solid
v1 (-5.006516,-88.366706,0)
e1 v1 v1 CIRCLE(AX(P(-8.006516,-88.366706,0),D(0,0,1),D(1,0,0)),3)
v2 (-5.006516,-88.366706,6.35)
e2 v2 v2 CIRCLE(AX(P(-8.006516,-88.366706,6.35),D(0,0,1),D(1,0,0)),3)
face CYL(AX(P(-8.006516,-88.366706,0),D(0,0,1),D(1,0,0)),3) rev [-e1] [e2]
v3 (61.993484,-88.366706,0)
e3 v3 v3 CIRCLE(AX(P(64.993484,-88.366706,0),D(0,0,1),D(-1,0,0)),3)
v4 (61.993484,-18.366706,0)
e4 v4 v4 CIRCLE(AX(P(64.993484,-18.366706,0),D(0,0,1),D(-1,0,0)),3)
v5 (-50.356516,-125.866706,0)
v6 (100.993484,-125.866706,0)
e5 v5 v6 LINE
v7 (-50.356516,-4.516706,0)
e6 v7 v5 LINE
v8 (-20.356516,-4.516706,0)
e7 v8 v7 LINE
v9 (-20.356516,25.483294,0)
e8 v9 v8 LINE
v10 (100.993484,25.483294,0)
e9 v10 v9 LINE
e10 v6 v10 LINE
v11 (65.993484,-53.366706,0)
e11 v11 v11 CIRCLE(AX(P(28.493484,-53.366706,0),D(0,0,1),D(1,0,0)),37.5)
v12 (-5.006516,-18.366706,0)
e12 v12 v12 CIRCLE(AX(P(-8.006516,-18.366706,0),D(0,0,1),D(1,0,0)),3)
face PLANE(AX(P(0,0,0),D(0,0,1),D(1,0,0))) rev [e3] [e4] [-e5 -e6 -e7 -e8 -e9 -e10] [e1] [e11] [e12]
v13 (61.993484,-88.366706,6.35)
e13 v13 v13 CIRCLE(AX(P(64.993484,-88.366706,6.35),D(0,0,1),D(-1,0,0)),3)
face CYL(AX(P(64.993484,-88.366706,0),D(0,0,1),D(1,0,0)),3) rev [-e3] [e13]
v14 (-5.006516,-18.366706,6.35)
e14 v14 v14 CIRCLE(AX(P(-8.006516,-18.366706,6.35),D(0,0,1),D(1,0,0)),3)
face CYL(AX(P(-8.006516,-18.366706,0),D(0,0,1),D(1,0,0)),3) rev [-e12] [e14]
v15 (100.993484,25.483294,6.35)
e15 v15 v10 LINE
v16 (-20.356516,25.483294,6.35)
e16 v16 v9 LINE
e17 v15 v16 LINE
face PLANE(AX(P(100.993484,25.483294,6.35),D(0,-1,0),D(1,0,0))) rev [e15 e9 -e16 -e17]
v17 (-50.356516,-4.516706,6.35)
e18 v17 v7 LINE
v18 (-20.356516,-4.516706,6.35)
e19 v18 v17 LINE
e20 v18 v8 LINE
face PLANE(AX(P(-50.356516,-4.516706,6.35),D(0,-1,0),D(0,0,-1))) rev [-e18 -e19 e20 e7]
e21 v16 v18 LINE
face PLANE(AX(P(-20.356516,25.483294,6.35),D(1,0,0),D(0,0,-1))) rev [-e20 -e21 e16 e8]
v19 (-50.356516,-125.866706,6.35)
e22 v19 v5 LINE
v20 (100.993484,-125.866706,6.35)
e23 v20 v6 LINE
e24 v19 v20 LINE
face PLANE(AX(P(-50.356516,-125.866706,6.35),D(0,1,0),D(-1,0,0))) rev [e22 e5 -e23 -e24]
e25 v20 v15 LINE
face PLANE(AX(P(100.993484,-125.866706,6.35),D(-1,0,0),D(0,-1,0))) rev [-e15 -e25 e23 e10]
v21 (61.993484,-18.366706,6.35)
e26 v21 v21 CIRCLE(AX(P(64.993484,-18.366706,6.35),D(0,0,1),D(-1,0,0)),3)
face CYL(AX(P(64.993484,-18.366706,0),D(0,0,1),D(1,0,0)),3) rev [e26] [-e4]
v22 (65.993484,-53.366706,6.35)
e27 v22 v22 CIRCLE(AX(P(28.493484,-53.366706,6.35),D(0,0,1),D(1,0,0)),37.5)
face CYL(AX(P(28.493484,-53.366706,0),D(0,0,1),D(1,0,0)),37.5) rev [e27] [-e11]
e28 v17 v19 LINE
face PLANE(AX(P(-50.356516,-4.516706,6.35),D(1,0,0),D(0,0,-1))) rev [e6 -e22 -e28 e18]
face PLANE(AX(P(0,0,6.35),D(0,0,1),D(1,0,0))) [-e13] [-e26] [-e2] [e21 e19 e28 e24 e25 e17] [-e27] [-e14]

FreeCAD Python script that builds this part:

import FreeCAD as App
import Part
import Sketcher
from FreeCAD import Vector
Q = App.Units.Quantity


def add_polygon(sketch, points):
    """Adds a closed chain of lines whose ends are joined by coincident constraints."""
    first, n = sketch.GeometryCount, len(points)
    for a, b in zip(points, points[1:] + points[:1]):
        sketch.addGeometry(Part.LineSegment(App.Vector(*a, 0), App.Vector(*b, 0)), False)
    for i in range(n):
        sketch.addConstraint(Sketcher.Constraint("Coincident", first + i, 2, first + (i + 1) % n, 1))

doc = App.newDocument("Part")
body = doc.addObject("PartDesign::Body", "Body")

sketch1 = doc.addObject("Sketcher::SketchObject", "Sketch")
body.addObject(sketch1)
sketch1.AttachmentSupport = (doc.XY_Plane, [""])
sketch1.MapMode = "FlatFace"
add_polygon(sketch1, [(-50.356516, -4.516706), (-50.356516, -125.866706), (100.993484, -125.866706), (100.993484, 25.483294), (-20.356516, 25.483294), (-20.356516, -4.516706)])
sketch1.addConstraint(Sketcher.Constraint("Vertical", 0))
sketch1.addConstraint(Sketcher.Constraint("Horizontal", 1))
sketch1.addConstraint(Sketcher.Constraint("Vertical", 2))
sketch1.addConstraint(Sketcher.Constraint("Horizontal", 3))
sketch1.addConstraint(Sketcher.Constraint("Vertical", 4))
sketch1.addConstraint(Sketcher.Constraint("Horizontal", 5))
sketch1.addConstraint(Sketcher.Constraint("Equal", 3, 0))
sketch1.addConstraint(Sketcher.Constraint("Equal", 1, 2))
sketch1.addConstraint(Sketcher.Constraint("DistanceX", 5, 2, 5, 1, Q("30 mm")))
sketch1.addConstraint(Sketcher.Constraint("DistanceX", 1, 1, 1, 2, Q("151.35 mm")))
sketch1.addConstraint(Sketcher.Constraint("DistanceX", 0, 2, -1, 1, Q("50.356516 mm")))
sketch1.addConstraint(Sketcher.Constraint("DistanceY", 0, 2, -1, 1, Q("125.866706 mm")))
pad1 = doc.addObject("PartDesign::Pad", "Pad")
body.addObject(pad1)
pad1.Profile = sketch1
pad1.Length = 6.35

sketch2 = doc.addObject("Sketcher::SketchObject", "Sketch001")
body.addObject(sketch2)
sketch2.AttachmentSupport = (doc.XY_Plane, [""])
sketch2.MapMode = "FlatFace"
sketch2.AttachmentOffset = App.Placement(Vector(0, 0, 6.35), App.Rotation())
sketch2.addGeometry(Part.Circle(Vector(28.493484, -53.366706, 0), Vector(0, 0, 1), 37.5), False)
sketch2.addGeometry(Part.Circle(Vector(-8.006516, -18.366706, 0), Vector(0, 0, 1), 3), False)
sketch2.addGeometry(Part.Circle(Vector(-8.006516, -88.366706, 0), Vector(0, 0, 1), 3), False)
sketch2.addGeometry(Part.Circle(Vector(64.993484, -18.366706, 0), Vector(0, 0, 1), 3), False)
sketch2.addGeometry(Part.Circle(Vector(64.993484, -88.366706, 0), Vector(0, 0, 1), 3), False)
sketch2.addConstraint(Sketcher.Constraint("Equal", 1, 2))
sketch2.addConstraint(Sketcher.Constraint("Equal", 2, 3))
sketch2.addConstraint(Sketcher.Constraint("Equal", 3, 4))
sketch2.addConstraint(Sketcher.Constraint("Horizontal", 1, 3, 3, 3))
sketch2.addConstraint(Sketcher.Constraint("Horizontal", 2, 3, 4, 3))
sketch2.addConstraint(Sketcher.Constraint("Vertical", 1, 3, 2, 3))
sketch2.addConstraint(Sketcher.Constraint("Vertical", 3, 3, 4, 3))
sketch2.addConstraint(Sketcher.Constraint("Diameter", 0, Q("75 mm")))
sketch2.addConstraint(Sketcher.Constraint("Diameter", 1, Q("6 mm")))
sketch2.addConstraint(Sketcher.Constraint("DistanceY", 0, 3, 1, 3, Q("35 mm")))
sketch2.addConstraint(Sketcher.Constraint("DistanceY", 2, 3, 0, 3, Q("35 mm")))
sketch2.addConstraint(Sketcher.Constraint("DistanceX", 1, 3, 3, 3, Q("73 mm")))
sketch2.addConstraint(Sketcher.Constraint("DistanceX", 1, 3, 0, 3, Q("36.5 mm")))
sketch2.addConstraint(Sketcher.Constraint("DistanceX", -1, 1, 0, 3, Q("28.493484 mm")))
sketch2.addConstraint(Sketcher.Constraint("DistanceY", 0, 3, -1, 1, Q("53.366706 mm")))
pocket1 = doc.addObject("PartDesign::Pocket", "Pocket")
body.addObject(pocket1)
pocket1.Profile = sketch2
pocket1.Length = 6.35

doc.recompute()
